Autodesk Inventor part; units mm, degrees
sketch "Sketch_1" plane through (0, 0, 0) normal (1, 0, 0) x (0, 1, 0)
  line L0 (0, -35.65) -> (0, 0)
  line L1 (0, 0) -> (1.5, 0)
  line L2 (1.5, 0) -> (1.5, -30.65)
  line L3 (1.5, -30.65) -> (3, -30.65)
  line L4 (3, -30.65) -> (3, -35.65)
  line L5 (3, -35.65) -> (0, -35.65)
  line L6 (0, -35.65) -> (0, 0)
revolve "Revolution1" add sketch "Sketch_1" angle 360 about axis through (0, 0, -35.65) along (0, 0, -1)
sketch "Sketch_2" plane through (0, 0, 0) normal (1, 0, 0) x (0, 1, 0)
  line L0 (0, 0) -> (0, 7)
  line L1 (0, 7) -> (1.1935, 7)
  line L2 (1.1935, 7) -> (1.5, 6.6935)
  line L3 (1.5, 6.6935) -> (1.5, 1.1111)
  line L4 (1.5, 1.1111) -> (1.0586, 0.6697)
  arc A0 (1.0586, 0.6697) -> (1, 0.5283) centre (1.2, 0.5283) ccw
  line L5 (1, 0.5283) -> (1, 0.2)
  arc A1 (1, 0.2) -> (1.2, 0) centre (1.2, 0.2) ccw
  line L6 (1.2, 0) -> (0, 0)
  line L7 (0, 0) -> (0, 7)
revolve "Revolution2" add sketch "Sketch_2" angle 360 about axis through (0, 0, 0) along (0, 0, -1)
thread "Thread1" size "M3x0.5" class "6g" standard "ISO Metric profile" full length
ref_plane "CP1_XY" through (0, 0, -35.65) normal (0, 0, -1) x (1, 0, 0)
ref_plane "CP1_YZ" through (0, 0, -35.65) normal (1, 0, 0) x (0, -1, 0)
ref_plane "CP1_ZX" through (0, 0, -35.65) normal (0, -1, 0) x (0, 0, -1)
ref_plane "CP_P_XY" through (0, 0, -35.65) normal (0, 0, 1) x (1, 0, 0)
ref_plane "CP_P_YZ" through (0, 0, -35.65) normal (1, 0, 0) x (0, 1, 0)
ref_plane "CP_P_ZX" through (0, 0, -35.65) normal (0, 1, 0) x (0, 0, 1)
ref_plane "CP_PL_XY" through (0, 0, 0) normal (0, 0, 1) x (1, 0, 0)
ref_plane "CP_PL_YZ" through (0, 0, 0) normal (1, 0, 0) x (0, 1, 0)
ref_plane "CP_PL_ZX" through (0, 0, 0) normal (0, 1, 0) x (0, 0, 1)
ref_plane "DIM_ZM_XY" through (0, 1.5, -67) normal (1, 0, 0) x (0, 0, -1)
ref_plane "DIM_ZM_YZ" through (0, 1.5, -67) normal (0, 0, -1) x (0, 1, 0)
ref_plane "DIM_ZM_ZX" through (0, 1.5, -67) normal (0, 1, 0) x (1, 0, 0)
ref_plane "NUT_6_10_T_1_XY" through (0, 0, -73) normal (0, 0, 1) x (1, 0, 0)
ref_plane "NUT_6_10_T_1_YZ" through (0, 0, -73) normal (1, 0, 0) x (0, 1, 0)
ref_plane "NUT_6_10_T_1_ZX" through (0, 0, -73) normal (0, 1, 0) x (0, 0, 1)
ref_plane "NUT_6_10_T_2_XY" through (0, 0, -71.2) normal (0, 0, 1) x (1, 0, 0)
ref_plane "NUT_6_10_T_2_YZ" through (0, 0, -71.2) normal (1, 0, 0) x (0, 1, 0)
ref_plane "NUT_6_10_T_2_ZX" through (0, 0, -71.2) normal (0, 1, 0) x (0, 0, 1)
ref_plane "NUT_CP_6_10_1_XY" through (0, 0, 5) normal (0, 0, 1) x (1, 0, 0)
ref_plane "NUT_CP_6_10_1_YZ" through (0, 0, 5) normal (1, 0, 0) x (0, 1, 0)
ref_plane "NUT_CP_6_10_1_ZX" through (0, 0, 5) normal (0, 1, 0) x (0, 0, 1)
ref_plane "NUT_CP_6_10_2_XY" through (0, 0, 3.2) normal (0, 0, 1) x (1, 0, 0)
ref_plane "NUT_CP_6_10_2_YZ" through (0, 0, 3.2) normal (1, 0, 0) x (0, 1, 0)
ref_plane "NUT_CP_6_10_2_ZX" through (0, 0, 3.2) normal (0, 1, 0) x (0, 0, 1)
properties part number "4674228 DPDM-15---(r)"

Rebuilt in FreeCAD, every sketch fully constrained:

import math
import FreeCAD as App
import Part
import Sketcher

V = App.Vector
Q = App.Units.Quantity

doc = App.newDocument("Part")
body = doc.addObject("PartDesign::Body", "Body")

sketch1 = doc.addObject("Sketcher::SketchObject", "Sketch")
body.addObject(sketch1)
sketch1.AttachmentSupport = (doc.YZ_Plane, [""])
sketch1.MapMode = "FlatFace"
sketch1.addGeometry([
    Part.LineSegment(V(0, 0, 0), V(0, -35.65, 0)),
    Part.LineSegment(V(0, -35.65, 0), V(3, -35.65, 0)),
    Part.LineSegment(V(3, -35.65, 0), V(3, -30.65, 0)),
    Part.LineSegment(V(3, -30.65, 0), V(1.5, -30.65, 0)),
    Part.LineSegment(V(1.5, -30.65, 0), V(1.5, 0, 0)),
    Part.LineSegment(V(1.5, 0, 0), V(0, 0, 0)),
], False)
sketch1.addConstraint([
    Sketcher.Constraint("Coincident", 0, 2, 1, 1),
    Sketcher.Constraint("Coincident", 1, 2, 2, 1),
    Sketcher.Constraint("Coincident", 2, 2, 3, 1),
    Sketcher.Constraint("Coincident", 3, 2, 4, 1),
    Sketcher.Constraint("Coincident", 4, 2, 5, 1),
    Sketcher.Constraint("Coincident", 5, 2, 0, 1),
    Sketcher.Constraint("Vertical", 0),
    Sketcher.Constraint("Horizontal", 1),
    Sketcher.Constraint("Vertical", 2),
    Sketcher.Constraint("Horizontal", 3),
    Sketcher.Constraint("Vertical", 4),
    Sketcher.Constraint("Horizontal", 5),
    Sketcher.Constraint("Coincident", 5, 2, -1, 1),
    Sketcher.Constraint("Equal", 3, 5),
    Sketcher.Constraint("DistanceX", 1, 1, 1, 2, Q("3 mm")),
    Sketcher.Constraint("DistanceY", 2, 1, 2, 2, Q("5 mm")),
    Sketcher.Constraint("DistanceY", 0, 2, 0, 1, Q("35.65 mm")),
])
revolution = doc.addObject("PartDesign::Revolution", "Revolution")
body.addObject(revolution)
revolution.Profile = sketch1
revolution.ReferenceAxis = (sketch1, ["V_Axis"])
revolution.Angle = 360

sketch2 = doc.addObject("Sketcher::SketchObject", "Sketch001")
body.addObject(sketch2)
sketch2.AttachmentSupport = (doc.YZ_Plane, [""])
sketch2.MapMode = "FlatFace"
sketch2.addGeometry([
    Part.LineSegment(V(0, 7, 0), V(0, 0, 0)),
    Part.LineSegment(V(0, 0, 0), V(1.2, 0, 0)),
    Part.ArcOfCircle(Part.Circle(V(1.2, 0.2, 0), V(0, 0, 1), 0.2), math.radians(180), math.radians(270)),
    Part.LineSegment(V(1, 0.2, 0), V(1, 0.5283, 0)),
    Part.ArcOfCircle(Part.Circle(V(1.2, 0.5283, 0), V(0, 0, 1), 0.19997), math.radians(135), math.radians(180)),
    Part.LineSegment(V(1.0586, 0.6697, 0), V(1.5, 1.1111, 0)),
    Part.LineSegment(V(1.5, 1.1111, 0), V(1.5, 6.6935, 0)),
    Part.LineSegment(V(1.5, 6.6935, 0), V(1.1935, 7, 0)),
    Part.LineSegment(V(1.1935, 7, 0), V(0, 7, 0)),
], False)
sketch2.addConstraint([
    Sketcher.Constraint("Coincident", 0, 2, 1, 1),
    Sketcher.Constraint("Tangent", 1, 2, 2, 2),
    Sketcher.Constraint("Tangent", 2, 1, 3, 1),
    Sketcher.Constraint("Tangent", 3, 2, 4, 2),
    Sketcher.Constraint("Tangent", 4, 1, 5, 1),
    Sketcher.Constraint("Coincident", 5, 2, 6, 1),
    Sketcher.Constraint("Coincident", 6, 2, 7, 1),
    Sketcher.Constraint("Coincident", 7, 2, 8, 1),
    Sketcher.Constraint("Coincident", 8, 2, 0, 1),
    Sketcher.Constraint("Vertical", 0),
    Sketcher.Constraint("Horizontal", 1),
    Sketcher.Constraint("Vertical", 3),
    Sketcher.Constraint("Vertical", 6),
    Sketcher.Constraint("Horizontal", 8),
    Sketcher.Constraint("Coincident", 0, 2, -1, 1),
    Sketcher.Constraint("Equal", 2, 4),
    Sketcher.Constraint("Perpendicular", 5, 7),
    Sketcher.Constraint("Radius", 2, Q("0.2 mm")),
    Sketcher.Constraint("DistanceY", 0, 2, 0, 1, Q("7 mm")),
    Sketcher.Constraint("Angle", 5, Q("45 deg")),
    Sketcher.Constraint("DistanceX", 1, 1, 1, 2, Q("1.2 mm")),
    Sketcher.Constraint("DistanceX", -1, 1, 5, 2, Q("1.5 mm")),
    Sketcher.Constraint("DistanceX", 8, 2, 8, 1, Q("1.1935 mm")),
    Sketcher.Constraint("DistanceY", 3, 1, 3, 2, Q("0.3283 mm")),
])
revolution2 = doc.addObject("PartDesign::Revolution", "Revolution001")
body.addObject(revolution2)
revolution2.Profile = sketch2
revolution2.ReferenceAxis = (sketch2, ["V_Axis"])
revolution2.Angle = 360

doc.recompute()
